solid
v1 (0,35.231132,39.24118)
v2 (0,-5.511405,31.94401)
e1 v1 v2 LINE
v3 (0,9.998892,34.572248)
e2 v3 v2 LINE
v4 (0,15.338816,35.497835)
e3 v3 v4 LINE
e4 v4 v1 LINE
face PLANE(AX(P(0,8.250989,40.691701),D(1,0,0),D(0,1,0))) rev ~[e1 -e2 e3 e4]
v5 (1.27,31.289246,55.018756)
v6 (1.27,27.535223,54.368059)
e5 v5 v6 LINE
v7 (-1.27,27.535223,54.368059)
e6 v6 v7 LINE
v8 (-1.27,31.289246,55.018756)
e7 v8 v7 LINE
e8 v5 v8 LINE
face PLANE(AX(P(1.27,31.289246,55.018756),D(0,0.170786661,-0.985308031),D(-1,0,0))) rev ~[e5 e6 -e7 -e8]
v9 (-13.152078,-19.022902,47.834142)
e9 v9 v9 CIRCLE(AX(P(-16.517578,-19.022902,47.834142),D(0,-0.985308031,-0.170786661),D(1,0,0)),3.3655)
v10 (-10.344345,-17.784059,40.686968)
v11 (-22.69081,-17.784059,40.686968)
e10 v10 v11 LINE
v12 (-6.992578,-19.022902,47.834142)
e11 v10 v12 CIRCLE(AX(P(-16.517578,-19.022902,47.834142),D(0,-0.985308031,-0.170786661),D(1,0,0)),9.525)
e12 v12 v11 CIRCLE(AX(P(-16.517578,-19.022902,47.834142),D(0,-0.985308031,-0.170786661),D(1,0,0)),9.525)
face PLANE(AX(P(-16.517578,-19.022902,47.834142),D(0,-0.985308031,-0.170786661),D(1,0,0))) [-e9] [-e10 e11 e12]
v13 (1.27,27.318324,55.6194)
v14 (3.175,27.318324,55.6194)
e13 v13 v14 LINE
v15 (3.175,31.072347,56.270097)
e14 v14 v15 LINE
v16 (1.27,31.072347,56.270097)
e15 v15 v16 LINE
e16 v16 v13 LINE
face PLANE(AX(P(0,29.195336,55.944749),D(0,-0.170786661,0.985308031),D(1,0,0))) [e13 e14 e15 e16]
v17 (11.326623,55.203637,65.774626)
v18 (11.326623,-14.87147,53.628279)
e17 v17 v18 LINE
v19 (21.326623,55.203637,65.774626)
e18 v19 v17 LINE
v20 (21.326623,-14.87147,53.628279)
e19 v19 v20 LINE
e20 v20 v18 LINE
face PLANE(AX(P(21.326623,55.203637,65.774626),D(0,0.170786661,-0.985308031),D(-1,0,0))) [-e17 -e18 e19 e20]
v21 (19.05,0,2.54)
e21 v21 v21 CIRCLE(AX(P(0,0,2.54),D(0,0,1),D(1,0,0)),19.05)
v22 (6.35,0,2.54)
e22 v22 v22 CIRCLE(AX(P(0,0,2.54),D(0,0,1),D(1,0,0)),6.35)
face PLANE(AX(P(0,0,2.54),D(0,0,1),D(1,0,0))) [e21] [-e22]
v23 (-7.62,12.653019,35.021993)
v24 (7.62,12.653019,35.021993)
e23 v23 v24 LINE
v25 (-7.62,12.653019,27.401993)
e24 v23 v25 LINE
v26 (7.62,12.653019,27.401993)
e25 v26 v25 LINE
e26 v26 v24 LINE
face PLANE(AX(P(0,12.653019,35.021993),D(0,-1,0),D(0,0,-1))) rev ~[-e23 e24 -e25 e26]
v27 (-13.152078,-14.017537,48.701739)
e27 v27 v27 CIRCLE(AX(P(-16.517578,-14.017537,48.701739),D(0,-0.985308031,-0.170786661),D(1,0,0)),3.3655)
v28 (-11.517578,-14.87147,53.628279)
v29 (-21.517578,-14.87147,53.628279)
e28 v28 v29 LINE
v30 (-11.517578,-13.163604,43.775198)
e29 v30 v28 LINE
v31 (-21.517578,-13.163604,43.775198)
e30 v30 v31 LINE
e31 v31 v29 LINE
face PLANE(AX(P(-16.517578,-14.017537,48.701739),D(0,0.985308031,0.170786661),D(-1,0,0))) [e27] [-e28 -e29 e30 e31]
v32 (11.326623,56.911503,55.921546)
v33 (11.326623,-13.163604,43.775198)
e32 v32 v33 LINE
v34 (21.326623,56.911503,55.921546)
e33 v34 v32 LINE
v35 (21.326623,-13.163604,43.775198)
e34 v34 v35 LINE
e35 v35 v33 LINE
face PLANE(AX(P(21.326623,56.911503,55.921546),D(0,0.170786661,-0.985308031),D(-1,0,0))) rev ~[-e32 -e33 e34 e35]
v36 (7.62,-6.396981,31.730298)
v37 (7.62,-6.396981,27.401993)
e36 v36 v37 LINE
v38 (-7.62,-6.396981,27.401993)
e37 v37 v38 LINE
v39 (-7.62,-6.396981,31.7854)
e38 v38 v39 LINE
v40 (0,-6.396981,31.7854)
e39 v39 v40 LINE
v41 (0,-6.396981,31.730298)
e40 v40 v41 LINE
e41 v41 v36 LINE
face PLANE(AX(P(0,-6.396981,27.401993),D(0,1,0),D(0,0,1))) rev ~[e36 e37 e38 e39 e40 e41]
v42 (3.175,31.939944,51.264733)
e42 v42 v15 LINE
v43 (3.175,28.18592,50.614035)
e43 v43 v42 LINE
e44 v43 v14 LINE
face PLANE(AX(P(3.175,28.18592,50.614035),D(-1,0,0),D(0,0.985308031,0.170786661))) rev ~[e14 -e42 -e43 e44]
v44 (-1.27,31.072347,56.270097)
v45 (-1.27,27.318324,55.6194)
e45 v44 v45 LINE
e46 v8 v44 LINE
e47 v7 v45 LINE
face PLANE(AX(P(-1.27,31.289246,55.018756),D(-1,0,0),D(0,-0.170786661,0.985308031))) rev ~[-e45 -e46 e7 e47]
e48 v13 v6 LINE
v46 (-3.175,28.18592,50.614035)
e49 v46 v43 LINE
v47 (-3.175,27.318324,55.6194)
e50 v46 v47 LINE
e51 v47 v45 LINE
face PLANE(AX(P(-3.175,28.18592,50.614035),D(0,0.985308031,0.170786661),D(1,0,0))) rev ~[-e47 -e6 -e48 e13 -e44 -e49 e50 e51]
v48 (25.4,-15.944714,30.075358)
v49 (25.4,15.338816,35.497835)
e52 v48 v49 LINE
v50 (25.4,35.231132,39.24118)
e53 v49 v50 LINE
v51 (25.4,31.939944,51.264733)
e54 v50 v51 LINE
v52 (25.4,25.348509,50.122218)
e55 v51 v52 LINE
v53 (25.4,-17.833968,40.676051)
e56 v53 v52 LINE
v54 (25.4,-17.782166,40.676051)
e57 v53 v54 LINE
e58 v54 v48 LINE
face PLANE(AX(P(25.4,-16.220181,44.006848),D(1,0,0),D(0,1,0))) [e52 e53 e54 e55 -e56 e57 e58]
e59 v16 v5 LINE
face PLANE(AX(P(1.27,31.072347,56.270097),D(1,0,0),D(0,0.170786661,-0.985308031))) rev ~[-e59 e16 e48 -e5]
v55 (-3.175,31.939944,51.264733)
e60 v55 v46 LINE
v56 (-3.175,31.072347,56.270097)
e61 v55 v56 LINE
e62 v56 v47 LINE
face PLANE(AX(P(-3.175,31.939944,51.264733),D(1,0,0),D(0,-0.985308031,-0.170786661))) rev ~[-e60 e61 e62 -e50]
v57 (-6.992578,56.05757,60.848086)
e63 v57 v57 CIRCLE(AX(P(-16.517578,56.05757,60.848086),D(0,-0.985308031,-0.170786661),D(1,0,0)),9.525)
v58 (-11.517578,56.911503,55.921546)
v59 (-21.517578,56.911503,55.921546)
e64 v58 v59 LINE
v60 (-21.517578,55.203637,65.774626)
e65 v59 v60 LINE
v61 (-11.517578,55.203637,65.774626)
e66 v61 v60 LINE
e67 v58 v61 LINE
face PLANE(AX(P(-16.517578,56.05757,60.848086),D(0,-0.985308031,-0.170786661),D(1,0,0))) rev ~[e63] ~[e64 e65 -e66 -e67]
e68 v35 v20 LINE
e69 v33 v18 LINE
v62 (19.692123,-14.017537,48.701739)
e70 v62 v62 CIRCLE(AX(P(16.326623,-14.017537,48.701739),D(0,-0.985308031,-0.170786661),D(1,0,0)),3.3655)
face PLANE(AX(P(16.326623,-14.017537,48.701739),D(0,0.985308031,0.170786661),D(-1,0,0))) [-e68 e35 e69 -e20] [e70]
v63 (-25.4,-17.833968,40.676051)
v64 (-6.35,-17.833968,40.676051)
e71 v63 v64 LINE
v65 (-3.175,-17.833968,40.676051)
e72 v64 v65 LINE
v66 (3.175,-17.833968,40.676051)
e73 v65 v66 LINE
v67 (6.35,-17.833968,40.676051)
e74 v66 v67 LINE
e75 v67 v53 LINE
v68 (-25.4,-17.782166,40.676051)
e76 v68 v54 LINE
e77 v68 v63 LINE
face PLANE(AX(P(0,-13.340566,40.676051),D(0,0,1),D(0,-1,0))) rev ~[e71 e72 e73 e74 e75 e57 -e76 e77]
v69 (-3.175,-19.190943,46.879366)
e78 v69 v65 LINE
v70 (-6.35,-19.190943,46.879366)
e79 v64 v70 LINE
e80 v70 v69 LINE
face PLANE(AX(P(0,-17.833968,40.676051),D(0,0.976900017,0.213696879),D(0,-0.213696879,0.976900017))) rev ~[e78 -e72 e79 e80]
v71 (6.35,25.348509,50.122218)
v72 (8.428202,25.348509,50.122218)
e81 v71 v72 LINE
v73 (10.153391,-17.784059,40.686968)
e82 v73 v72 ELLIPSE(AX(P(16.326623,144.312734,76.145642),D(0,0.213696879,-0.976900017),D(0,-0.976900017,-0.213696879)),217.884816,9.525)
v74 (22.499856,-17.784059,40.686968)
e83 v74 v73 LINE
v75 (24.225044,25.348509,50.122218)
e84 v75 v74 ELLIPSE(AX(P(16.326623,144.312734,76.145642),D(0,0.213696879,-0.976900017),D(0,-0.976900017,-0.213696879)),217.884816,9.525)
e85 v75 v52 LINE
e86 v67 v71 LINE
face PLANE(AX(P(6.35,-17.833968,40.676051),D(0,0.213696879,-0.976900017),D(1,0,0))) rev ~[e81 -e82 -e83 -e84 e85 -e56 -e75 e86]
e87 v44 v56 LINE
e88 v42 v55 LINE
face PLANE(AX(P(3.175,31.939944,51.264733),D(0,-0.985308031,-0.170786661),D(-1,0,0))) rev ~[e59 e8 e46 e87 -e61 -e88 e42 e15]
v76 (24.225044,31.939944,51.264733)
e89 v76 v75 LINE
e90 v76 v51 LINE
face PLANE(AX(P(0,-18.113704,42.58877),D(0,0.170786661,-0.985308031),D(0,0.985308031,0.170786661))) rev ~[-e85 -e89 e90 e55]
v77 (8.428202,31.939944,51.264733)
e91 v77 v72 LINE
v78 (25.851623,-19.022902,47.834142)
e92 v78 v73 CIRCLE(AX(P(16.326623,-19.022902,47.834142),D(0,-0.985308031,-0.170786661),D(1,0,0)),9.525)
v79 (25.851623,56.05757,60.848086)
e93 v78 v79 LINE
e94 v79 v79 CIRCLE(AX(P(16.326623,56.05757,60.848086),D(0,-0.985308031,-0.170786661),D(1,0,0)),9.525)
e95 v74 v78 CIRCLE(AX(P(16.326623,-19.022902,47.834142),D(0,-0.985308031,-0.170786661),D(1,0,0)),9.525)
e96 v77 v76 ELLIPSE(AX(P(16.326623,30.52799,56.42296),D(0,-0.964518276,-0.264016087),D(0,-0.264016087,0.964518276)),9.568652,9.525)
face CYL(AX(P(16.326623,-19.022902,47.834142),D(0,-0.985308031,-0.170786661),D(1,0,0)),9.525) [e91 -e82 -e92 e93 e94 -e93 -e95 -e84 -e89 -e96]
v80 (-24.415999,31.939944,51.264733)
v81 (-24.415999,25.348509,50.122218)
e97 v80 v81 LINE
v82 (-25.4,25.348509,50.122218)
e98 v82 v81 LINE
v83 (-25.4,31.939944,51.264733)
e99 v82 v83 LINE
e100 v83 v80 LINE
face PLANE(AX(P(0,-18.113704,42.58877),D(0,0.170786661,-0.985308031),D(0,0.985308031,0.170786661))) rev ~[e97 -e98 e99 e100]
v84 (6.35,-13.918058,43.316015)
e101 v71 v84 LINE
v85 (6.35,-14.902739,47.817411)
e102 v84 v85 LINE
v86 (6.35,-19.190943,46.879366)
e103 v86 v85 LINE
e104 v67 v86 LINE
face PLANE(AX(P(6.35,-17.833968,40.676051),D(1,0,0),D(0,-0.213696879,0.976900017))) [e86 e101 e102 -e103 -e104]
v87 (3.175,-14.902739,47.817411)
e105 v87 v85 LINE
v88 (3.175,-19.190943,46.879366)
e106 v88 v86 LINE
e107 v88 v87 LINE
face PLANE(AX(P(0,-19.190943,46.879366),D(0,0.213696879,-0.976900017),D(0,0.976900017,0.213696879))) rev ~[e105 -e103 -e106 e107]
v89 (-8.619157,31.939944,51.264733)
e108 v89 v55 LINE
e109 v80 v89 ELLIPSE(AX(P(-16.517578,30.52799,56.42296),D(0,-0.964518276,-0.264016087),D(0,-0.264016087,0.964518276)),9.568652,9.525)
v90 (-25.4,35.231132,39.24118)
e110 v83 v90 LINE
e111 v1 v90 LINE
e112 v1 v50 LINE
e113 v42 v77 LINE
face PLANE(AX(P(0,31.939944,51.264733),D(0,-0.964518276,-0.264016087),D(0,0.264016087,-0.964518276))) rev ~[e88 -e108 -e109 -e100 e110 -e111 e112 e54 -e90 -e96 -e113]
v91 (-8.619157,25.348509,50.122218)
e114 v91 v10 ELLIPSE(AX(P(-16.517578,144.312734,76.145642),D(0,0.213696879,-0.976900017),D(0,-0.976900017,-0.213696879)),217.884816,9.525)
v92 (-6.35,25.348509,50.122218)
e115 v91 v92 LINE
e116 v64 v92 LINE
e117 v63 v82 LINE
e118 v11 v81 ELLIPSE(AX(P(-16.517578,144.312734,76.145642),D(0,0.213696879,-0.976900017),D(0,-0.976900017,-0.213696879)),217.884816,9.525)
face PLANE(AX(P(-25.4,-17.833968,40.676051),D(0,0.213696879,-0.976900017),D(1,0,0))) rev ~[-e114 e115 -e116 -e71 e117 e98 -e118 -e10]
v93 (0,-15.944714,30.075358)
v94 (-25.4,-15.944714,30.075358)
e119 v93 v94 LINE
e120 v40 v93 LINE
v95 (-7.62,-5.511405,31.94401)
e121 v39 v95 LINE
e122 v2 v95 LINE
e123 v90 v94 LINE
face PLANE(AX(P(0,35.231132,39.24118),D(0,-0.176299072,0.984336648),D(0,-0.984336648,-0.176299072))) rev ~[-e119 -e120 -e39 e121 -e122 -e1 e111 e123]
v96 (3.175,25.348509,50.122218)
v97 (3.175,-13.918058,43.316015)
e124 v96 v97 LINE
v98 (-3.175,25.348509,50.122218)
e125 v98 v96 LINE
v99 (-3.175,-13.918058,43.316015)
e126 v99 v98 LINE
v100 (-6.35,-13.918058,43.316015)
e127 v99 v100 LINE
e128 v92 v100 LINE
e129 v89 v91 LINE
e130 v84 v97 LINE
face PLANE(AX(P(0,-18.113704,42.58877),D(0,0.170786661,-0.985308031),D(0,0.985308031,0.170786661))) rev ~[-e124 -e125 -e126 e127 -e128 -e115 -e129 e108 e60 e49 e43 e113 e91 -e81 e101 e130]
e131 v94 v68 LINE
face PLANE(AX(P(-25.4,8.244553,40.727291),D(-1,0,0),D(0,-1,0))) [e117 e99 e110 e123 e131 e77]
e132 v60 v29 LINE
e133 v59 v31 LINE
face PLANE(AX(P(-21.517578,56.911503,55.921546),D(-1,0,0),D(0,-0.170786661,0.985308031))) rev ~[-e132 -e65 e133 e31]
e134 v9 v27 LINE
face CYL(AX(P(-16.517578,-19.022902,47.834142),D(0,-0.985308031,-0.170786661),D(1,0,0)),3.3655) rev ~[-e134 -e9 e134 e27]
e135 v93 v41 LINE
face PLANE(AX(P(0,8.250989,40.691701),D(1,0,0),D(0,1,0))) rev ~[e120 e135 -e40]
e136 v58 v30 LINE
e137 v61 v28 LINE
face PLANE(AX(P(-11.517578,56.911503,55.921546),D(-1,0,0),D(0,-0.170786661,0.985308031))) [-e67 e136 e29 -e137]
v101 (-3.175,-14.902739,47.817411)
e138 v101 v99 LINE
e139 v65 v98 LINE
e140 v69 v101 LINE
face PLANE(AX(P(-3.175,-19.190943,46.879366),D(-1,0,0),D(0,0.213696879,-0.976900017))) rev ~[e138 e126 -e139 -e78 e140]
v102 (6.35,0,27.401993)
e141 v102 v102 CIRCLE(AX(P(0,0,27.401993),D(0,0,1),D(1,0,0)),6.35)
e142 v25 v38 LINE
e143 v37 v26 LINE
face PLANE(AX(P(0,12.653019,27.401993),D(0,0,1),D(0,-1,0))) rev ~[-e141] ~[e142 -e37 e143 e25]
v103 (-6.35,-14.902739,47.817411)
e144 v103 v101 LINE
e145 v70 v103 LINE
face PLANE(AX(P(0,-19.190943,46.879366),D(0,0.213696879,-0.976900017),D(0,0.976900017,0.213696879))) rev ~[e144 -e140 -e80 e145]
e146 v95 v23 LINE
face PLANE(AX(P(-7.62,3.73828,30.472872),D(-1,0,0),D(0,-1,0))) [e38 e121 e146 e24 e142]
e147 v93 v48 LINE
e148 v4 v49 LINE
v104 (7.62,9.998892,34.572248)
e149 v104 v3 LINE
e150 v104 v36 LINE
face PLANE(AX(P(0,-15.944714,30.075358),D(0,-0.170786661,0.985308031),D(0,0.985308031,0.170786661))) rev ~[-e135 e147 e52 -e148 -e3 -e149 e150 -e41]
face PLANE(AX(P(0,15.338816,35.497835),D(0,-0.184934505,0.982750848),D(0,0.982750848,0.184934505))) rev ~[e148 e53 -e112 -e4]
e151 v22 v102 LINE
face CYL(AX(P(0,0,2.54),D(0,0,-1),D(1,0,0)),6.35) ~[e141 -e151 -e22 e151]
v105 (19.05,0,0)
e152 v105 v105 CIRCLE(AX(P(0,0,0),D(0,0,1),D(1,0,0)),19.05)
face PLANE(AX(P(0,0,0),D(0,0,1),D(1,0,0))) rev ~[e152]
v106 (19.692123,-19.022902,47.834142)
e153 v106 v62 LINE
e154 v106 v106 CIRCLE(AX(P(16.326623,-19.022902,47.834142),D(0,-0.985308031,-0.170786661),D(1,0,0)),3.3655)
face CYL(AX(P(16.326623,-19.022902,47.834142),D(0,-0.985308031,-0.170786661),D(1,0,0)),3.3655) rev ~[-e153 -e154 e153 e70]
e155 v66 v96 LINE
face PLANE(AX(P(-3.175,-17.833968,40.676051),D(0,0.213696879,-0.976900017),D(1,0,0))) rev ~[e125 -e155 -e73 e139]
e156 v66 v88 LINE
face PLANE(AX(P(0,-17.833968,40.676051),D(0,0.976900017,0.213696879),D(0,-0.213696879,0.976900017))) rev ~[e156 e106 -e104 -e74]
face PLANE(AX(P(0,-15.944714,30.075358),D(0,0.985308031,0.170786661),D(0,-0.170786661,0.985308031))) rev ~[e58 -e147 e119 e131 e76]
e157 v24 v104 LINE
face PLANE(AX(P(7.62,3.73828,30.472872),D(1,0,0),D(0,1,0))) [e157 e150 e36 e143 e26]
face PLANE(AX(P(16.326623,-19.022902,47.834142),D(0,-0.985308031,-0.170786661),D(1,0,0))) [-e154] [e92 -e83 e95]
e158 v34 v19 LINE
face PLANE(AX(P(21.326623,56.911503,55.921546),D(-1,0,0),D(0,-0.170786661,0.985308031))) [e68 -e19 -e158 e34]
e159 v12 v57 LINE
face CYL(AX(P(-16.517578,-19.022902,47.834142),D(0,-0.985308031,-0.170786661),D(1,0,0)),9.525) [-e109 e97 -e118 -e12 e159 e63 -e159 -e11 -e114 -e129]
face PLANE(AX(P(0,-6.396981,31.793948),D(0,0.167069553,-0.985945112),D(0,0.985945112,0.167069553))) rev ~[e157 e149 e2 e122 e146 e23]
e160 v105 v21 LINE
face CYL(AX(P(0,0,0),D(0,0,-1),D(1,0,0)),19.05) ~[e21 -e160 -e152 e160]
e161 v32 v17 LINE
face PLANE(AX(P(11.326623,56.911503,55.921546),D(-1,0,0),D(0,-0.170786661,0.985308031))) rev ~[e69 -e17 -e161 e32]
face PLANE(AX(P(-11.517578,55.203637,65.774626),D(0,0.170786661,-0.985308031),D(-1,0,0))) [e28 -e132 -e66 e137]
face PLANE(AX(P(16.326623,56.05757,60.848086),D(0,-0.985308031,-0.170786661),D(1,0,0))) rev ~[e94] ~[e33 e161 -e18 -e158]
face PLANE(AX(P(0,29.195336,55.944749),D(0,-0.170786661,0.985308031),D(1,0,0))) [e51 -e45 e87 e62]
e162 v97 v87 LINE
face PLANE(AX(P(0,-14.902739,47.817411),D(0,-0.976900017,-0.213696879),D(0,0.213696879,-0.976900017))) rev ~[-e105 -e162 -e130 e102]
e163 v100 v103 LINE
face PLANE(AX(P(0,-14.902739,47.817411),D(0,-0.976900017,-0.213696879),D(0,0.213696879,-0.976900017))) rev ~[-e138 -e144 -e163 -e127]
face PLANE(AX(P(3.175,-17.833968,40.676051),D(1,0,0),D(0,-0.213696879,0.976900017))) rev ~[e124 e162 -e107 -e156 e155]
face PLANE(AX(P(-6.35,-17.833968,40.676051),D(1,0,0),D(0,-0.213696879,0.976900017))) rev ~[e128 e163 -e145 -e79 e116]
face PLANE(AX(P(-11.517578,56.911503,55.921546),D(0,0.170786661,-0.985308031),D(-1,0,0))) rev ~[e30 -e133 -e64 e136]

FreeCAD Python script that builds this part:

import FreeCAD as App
import Part
import Sketcher
from FreeCAD import Vector
Q = App.Units.Quantity

doc = App.newDocument("Part")
params = doc.addObject("Spreadsheet::Sheet", "Params")
for row, (alias, value) in enumerate([
    ("sketch1_diameter", "1.5 in"),
    ("pad1_length", "0.1 in"),
    ("sketch2_diameter", "0.5 in"),
    ("pad2_length", "1 in"),
    ("sketch3_height", "0.3 in"),
    ("sketch3_width", "0.75 in"),
    ("pad3_length", "0.3 in"),
    ("sketch4_height", "0.3 in"),
    ("sketch4_width", "0.75 in"),
    ("pad4_length", "0.3 in"),
    ("sketch5_length", "2 in"),
    ("sketch5_length2", "0.5 in"),
    ("sketch5_length3", "1.25 in"),
    ("pad5_length", "1 in"),
    ("sketch6_length", "2 in"),
    ("sketch6_length2", "0.5 in"),
    ("pad6_length", "1 in"),
    ("sketch7_length", "0.25 in"),
    ("pad7_length", "1 in"),
    ("sketch8_length", "0.25 in"),
    ("pad8_length", "1 in"),
    ("sketch9_width", "0.75 in"),
    ("sketch9_height", "0.25 in"),
    ("pocket1_length", "2 in"),
    ("sketch10_width", "0.75 in"),
    ("sketch10_height", "0.25 in"),
    ("pocket2_length", "2 in"),
    ("sketch11_width", "0.25 in"),
    ("pocket3_length", "2 in"),
    ("sketch12_width", "0.25 in"),
    ("sketch12_height", "0.15 in"),
    ("pad9_length", "0.2 in"),
    ("sketch13_width", "0.1 in"),
    ("sketch13_height", "0.05 in"),
    ("pocket4_length", "1 in"),
    ("sketch14_diameter", "0.75 in"),
    ("pad10_length", "3 in"),
    ("pocket5_length", "2.8 in"),
    ("pocket6_length", "2.8 in"),
    ("sketch17_diameter", "0.265 in"),
    ("pocket7_length", "1 in"),
], start=1):
    params.set(f"A{row}", alias)
    params.set(f"B{row}", "=" + value)
    params.setAlias(f"B{row}", alias)

body = doc.addObject("PartDesign::Body", "Body")

# Sketch on XY plane
sketch1 = body.newObject("Sketcher::SketchObject", "Sketch")
sketch1.AttachmentSupport = (doc.getObject("XY_Plane"), [""])
sketch1.MapMode = "FlatFace"
sketch1.addGeometry(Part.Circle(Vector(0, 0, 0), Vector(0, 0, 1), 19.05), False)
sketch1.addConstraint([
    Sketcher.Constraint("Coincident", 0, 3, -1, 1),
    Sketcher.Constraint("Diameter", 0, Q("1.5 in")),
])
sketch1.setExpression("Constraints[1]", "Params.sketch1_diameter")
pad1 = body.newObject("PartDesign::Pad", "Pad")
pad1.Profile = sketch1
pad1.setExpression("Length", "Params.pad1_length")

# Sketch on XY plane
sketch2 = body.newObject("Sketcher::SketchObject", "Sketch001")
sketch2.AttachmentSupport = (doc.getObject("XY_Plane"), [""])
sketch2.MapMode = "FlatFace"
sketch2.AttachmentOffset = App.Placement(Vector(0, 0, 0.1 * 25.4), App.Rotation())
sketch2.addGeometry(Part.Circle(Vector(0, 0, 0), Vector(0, 0, 1), 6.35), False)
sketch2.addConstraint([
    Sketcher.Constraint("Coincident", 0, 3, -1, 1),
    Sketcher.Constraint("Diameter", 0, Q("0.5 in")),
])
sketch2.setExpression("Constraints[1]", "Params.sketch2_diameter")
pad2 = body.newObject("PartDesign::Pad", "Pad001")
pad2.Profile = sketch2
pad2.setExpression("Length", "Params.pad2_length")

# Sketch on YZ plane
sketch3 = body.newObject("Sketcher::SketchObject", "Sketch002")
sketch3.AttachmentSupport = (doc.getObject("YZ_Plane"), [""])
sketch3.MapMode = "FlatFace"
sketch3.addGeometry([
    Part.LineSegment(Vector(-6.396981, 31.793948, 0), Vector(-6.396981, 27.401993, 0)),
    Part.LineSegment(Vector(-6.396981, 27.401993, 0), Vector(12.653019, 27.401993, 0)),
    Part.LineSegment(Vector(12.653019, 27.401993, 0), Vector(12.653019, 35.021993, 0)),
    Part.LineSegment(Vector(12.653019, 35.021993, 0), Vector(-6.396981, 31.793948, 0)),
], False)
sketch3.addConstraint([
    Sketcher.Constraint("Coincident", 0, 2, 1, 1),
    Sketcher.Constraint("Coincident", 1, 2, 2, 1),
    Sketcher.Constraint("Coincident", 2, 2, 3, 1),
    Sketcher.Constraint("Coincident", 3, 2, 0, 1),
    Sketcher.Constraint("Vertical", 0),
    Sketcher.Constraint("Horizontal", 1),
    Sketcher.Constraint("Vertical", 2),
    Sketcher.Constraint("DistanceY", 2, 1, 2, 2, Q("0.3 in")),
    Sketcher.Constraint("DistanceX", 1, 1, 1, 2, Q("0.75 in")),
    Sketcher.Constraint("DistanceY", 0, 2, 0, 1, Q("4.391955 mm")),
    Sketcher.Constraint("DistanceX", 0, 2, -1, 1, Q("6.396981 mm")),
    Sketcher.Constraint("DistanceY", -1, 1, 3, 2, Q("31.793948 mm")),
])
sketch3.setExpression("Constraints[7]", "Params.sketch3_height")
sketch3.setExpression("Constraints[8]", "Params.sketch3_width")
pad3 = body.newObject("PartDesign::Pad", "Pad002")
pad3.Profile = sketch3
pad3.setExpression("Length", "Params.pad3_length")

# Sketch on YZ plane
sketch4 = body.newObject("Sketcher::SketchObject", "Sketch003")
sketch4.AttachmentSupport = (doc.getObject("YZ_Plane"), [""])
sketch4.MapMode = "FlatFace"
sketch4.addGeometry([
    Part.LineSegment(Vector(12.653019, 35.021993, 0), Vector(12.653019, 27.401993, 0)),
    Part.LineSegment(Vector(12.653019, 27.401993, 0), Vector(-6.396981, 27.401993, 0)),
    Part.LineSegment(Vector(-6.396981, 27.401993, 0), Vector(-6.396981, 31.793948, 0)),
    Part.LineSegment(Vector(-6.396981, 31.793948, 0), Vector(12.653019, 35.021993, 0)),
], False)
sketch4.addConstraint([
    Sketcher.Constraint("Coincident", 0, 2, 1, 1),
    Sketcher.Constraint("Coincident", 1, 2, 2, 1),
    Sketcher.Constraint("Coincident", 2, 2, 3, 1),
    Sketcher.Constraint("Coincident", 3, 2, 0, 1),
    Sketcher.Constraint("Vertical", 0),
    Sketcher.Constraint("Horizontal", 1),
    Sketcher.Constraint("Vertical", 2),
    Sketcher.Constraint("DistanceY", 0, 2, 0, 1, Q("0.3 in")),
    Sketcher.Constraint("DistanceX", 1, 2, 1, 1, Q("0.75 in")),
    Sketcher.Constraint("DistanceY", 2, 1, 2, 2, Q("4.391955 mm")),
    Sketcher.Constraint("DistanceX", -1, 1, 0, 2, Q("12.653019 mm")),
    Sketcher.Constraint("DistanceY", -1, 1, 2, 2, Q("31.793948 mm")),
])
sketch4.setExpression("Constraints[7]", "Params.sketch4_height")
sketch4.setExpression("Constraints[8]", "Params.sketch4_width")
pad4 = body.newObject("PartDesign::Pad", "Pad003")
pad4.Profile = sketch4
pad4.setExpression("Length", "Params.pad4_length")
pad4.Reversed = True

# Sketch on YZ plane
sketch5 = body.newObject("Sketcher::SketchObject", "Sketch004")
sketch5.AttachmentSupport = (doc.getObject("YZ_Plane"), [""])
sketch5.MapMode = "FlatFace"
sketch5.addGeometry([
    Part.LineSegment(Vector(-15.944714, 30.075358, 0), Vector(15.338816, 35.497835, 0)),  # 0
    Part.LineSegment(Vector(15.338816, 35.497835, 0), Vector(35.231132, 39.24118, 0)),  # 1
    Part.LineSegment(Vector(35.231132, 39.24118, 0), Vector(31.939944, 51.264733, 0)),  # 2
    Part.LineSegment(Vector(31.939944, 51.264733, 0), Vector(-18.113704, 42.58877, 0)),  # 3
    Part.LineSegment(Vector(-18.113704, 42.58877, 0), Vector(-15.944714, 30.075358, 0)),  # 4
], False)
sketch5.addConstraint([
    Sketcher.Constraint("Coincident", 0, 2, 1, 1),
    Sketcher.Constraint("Coincident", 1, 2, 2, 1),
    Sketcher.Constraint("Coincident", 2, 2, 3, 1),
    Sketcher.Constraint("Coincident", 3, 2, 4, 1),
    Sketcher.Constraint("Coincident", 4, 2, 0, 1),
    Sketcher.Constraint("Parallel", 0, 3),
    Sketcher.Constraint("Perpendicular", 3, 4),
    Sketcher.Constraint("Distance", 3, Q("2 in")),
    Sketcher.Constraint("Distance", 4, Q("0.5 in")),
    Sketcher.Constraint("Distance", 0, Q("1.25 in")),
    Sketcher.Constraint("DistanceY", -1, 1, 1, 2, Q("39.24118 mm")),
    Sketcher.Constraint("DistanceY", -1, 1, 3, 2, Q("42.58877 mm")),
    Sketcher.Constraint("DistanceY", -1, 1, 4, 2, Q("30.075358 mm")),
    Sketcher.Constraint("DistanceX", 2, 2, 1, 2, Q("3.291188 mm")),
    Sketcher.Constraint("DistanceX", -1, 1, 0, 2, Q("15.338816 mm")),
])
sketch5.setExpression("Constraints[7]", "Params.sketch5_length")
sketch5.setExpression("Constraints[8]", "Params.sketch5_length2")
sketch5.setExpression("Constraints[9]", "Params.sketch5_length3")
pad5 = body.newObject("PartDesign::Pad", "Pad004")
pad5.Profile = sketch5
pad5.setExpression("Length", "Params.pad5_length")

# Sketch on YZ plane
sketch6 = body.newObject("Sketcher::SketchObject", "Sketch005")
sketch6.AttachmentSupport = (doc.getObject("YZ_Plane"), [""])
sketch6.MapMode = "FlatFace"
sketch6.addGeometry([
    Part.LineSegment(Vector(31.939944, 51.264733, 0), Vector(35.231132, 39.24118, 0)),
    Part.LineSegment(Vector(35.231132, 39.24118, 0), Vector(-15.944714, 30.075358, 0)),
    Part.LineSegment(Vector(-15.944714, 30.075358, 0), Vector(-18.113704, 42.58877, 0)),
    Part.LineSegment(Vector(-18.113704, 42.58877, 0), Vector(31.939944, 51.264733, 0)),
], False)
sketch6.addConstraint([
    Sketcher.Constraint("Coincident", 0, 2, 1, 1),
    Sketcher.Constraint("Coincident", 1, 2, 2, 1),
    Sketcher.Constraint("Coincident", 2, 2, 3, 1),
    Sketcher.Constraint("Coincident", 3, 2, 0, 1),
    Sketcher.Constraint("Perpendicular", 2, 3),
    Sketcher.Constraint("Distance", 3, Q("2 in")),
    Sketcher.Constraint("Distance", 2, Q("0.5 in")),
    Sketcher.Constraint("DistanceY", -1, 1, 0, 2, Q("39.24118 mm")),
    Sketcher.Constraint("DistanceY", -1, 1, 1, 2, Q("30.075358 mm")),
    Sketcher.Constraint("DistanceY", -1, 1, 2, 2, Q("42.58877 mm")),
    Sketcher.Constraint("DistanceX", 3, 2, 0, 2, Q("3.291188 mm")),
    Sketcher.Constraint("DistanceX", -1, 1, 0, 2, Q("35.231132 mm")),
])
sketch6.setExpression("Constraints[5]", "Params.sketch6_length")
sketch6.setExpression("Constraints[6]", "Params.sketch6_length2")
pad6 = body.newObject("PartDesign::Pad", "Pad005")
pad6.Profile = sketch6
pad6.setExpression("Length", "Params.pad6_length")
pad6.Reversed = True

# Sketch on YZ plane
sketch7 = body.newObject("Sketcher::SketchObject", "Sketch006")
sketch7.AttachmentSupport = (doc.getObject("YZ_Plane"), [""])
sketch7.MapMode = "FlatFace"
sketch7.addGeometry([
    Part.LineSegment(Vector(-19.190943, 46.879366, 0), Vector(-17.833968, 40.676051, 0)),
    Part.LineSegment(Vector(-17.833968, 40.676051, 0), Vector(-13.340566, 40.676051, 0)),
    Part.LineSegment(Vector(-13.340566, 40.676051, 0), Vector(-14.902739, 47.817411, 0)),
    Part.LineSegment(Vector(-14.902739, 47.817411, 0), Vector(-19.190943, 46.879366, 0)),
], False)
sketch7.addConstraint([
    Sketcher.Constraint("Coincident", 0, 2, 1, 1),
    Sketcher.Constraint("Coincident", 1, 2, 2, 1),
    Sketcher.Constraint("Coincident", 2, 2, 3, 1),
    Sketcher.Constraint("Coincident", 3, 2, 0, 1),
    Sketcher.Constraint("Horizontal", 1),
    Sketcher.Constraint("Parallel", 0, 2),
    Sketcher.Constraint("Perpendicular", 2, 3),
    Sketcher.Constraint("Distance", 0, Q("0.25 in")),
    Sketcher.Constraint("DistanceX", 1, 1, 1, 2, Q("4.493402 mm")),
    Sketcher.Constraint("DistanceY", -1, 1, 0, 2, Q("40.676051 mm")),
    Sketcher.Constraint("DistanceX", 2, 2, -1, 1, Q("14.902739 mm")),
    Sketcher.Constraint("DistanceY", -1, 1, 2, 2, Q("47.817411 mm")),
])
sketch7.setExpression("Constraints[7]", "Params.sketch7_length")
pad7 = body.newObject("PartDesign::Pad", "Pad006")
pad7.Profile = sketch7
pad7.setExpression("Length", "Params.pad7_length")

# Sketch on YZ plane
sketch8 = body.newObject("Sketcher::SketchObject", "Sketch007")
sketch8.AttachmentSupport = (doc.getObject("YZ_Plane"), [""])
sketch8.MapMode = "FlatFace"
sketch8.addGeometry([
    Part.LineSegment(Vector(-13.340566, 40.676051, 0), Vector(-17.833968, 40.676051, 0)),
    Part.LineSegment(Vector(-17.833968, 40.676051, 0), Vector(-19.190943, 46.879366, 0)),
    Part.LineSegment(Vector(-19.190943, 46.879366, 0), Vector(-14.902739, 47.817411, 0)),
    Part.LineSegment(Vector(-14.902739, 47.817411, 0), Vector(-13.340566, 40.676051, 0)),
], False)
sketch8.addConstraint([
    Sketcher.Constraint("Coincident", 0, 2, 1, 1),
    Sketcher.Constraint("Coincident", 1, 2, 2, 1),
    Sketcher.Constraint("Coincident", 2, 2, 3, 1),
    Sketcher.Constraint("Coincident", 3, 2, 0, 1),
    Sketcher.Constraint("Horizontal", 0),
    Sketcher.Constraint("Perpendicular", 1, 2),
    Sketcher.Constraint("Perpendicular", 2, 3),
    Sketcher.Constraint("Distance", 1, Q("0.25 in")),
    Sketcher.Constraint("DistanceX", 0, 2, 0, 1, Q("4.493402 mm")),
    Sketcher.Constraint("DistanceY", -1, 1, 0, 2, Q("40.676051 mm")),
    Sketcher.Constraint("DistanceX", 2, 2, -1, 1, Q("14.902739 mm")),
    Sketcher.Constraint("DistanceY", -1, 1, 2, 2, Q("47.817411 mm")),
])
sketch8.setExpression("Constraints[7]", "Params.sketch8_length")
pad8 = body.newObject("PartDesign::Pad", "Pad007")
pad8.Profile = sketch8
pad8.setExpression("Length", "Params.pad8_length")
pad8.Reversed = True

# Sketch on an angled plane
sketch9 = body.newObject("Sketcher::SketchObject", "Sketch008")
sketch9.Placement = App.Placement(Vector(0, -8.528003, -1.865501), App.Rotation(Vector(1, 0, 0), Vector(0, -0.213696879, 0.976900017), Vector(0, -0.976900017, -0.213696879), "ZXY"))
sketch9.addGeometry([
    Part.LineSegment(Vector(-25.4, 49.897498, 0), Vector(-25.4, 43.547498, 0)),
    Part.LineSegment(Vector(-25.4, 43.547498, 0), Vector(-6.35, 43.547498, 0)),
    Part.LineSegment(Vector(-6.35, 43.547498, 0), Vector(-6.35, 49.897498, 0)),
    Part.LineSegment(Vector(-6.35, 49.897498, 0), Vector(-25.4, 49.897498, 0)),
], False)
sketch9.addConstraint([
    Sketcher.Constraint("Coincident", 0, 2, 1, 1),
    Sketcher.Constraint("Coincident", 1, 2, 2, 1),
    Sketcher.Constraint("Coincident", 2, 2, 3, 1),
    Sketcher.Constraint("Coincident", 3, 2, 0, 1),
    Sketcher.Constraint("Vertical", 0),
    Sketcher.Constraint("Horizontal", 1),
    Sketcher.Constraint("Vertical", 2),
    Sketcher.Constraint("Horizontal", 3),
    Sketcher.Constraint("DistanceX", 0, 2, -1, 1, Q("1 in")),
    Sketcher.Constraint("DistanceX", 1, 1, 1, 2, Q("0.75 in")),
    Sketcher.Constraint("DistanceY", 0, 2, 0, 1, Q("0.25 in")),
    Sketcher.Constraint("DistanceY", -1, 1, 0, 2, Q("43.547498 mm")),
])
sketch9.setExpression("Constraints[9]", "Params.sketch9_width")
sketch9.setExpression("Constraints[10]", "Params.sketch9_height")
pocket1 = body.newObject("PartDesign::Pocket", "Pocket")
pocket1.Profile = sketch9
pocket1.setExpression("Length", "Params.pocket1_length")

# Sketch on an angled plane
sketch10 = body.newObject("Sketcher::SketchObject", "Sketch009")
sketch10.Placement = App.Placement(Vector(0, -8.528003, -1.865501), App.Rotation(Vector(1, 0, 0), Vector(0, -0.213696879, 0.976900017), Vector(0, -0.976900017, -0.213696879), "ZXY"))
sketch10.addGeometry([
    Part.LineSegment(Vector(6.35, 49.897498, 0), Vector(6.35, 43.547498, 0)),
    Part.LineSegment(Vector(6.35, 43.547498, 0), Vector(25.4, 43.547498, 0)),
    Part.LineSegment(Vector(25.4, 43.547498, 0), Vector(25.4, 49.897498, 0)),
    Part.LineSegment(Vector(25.4, 49.897498, 0), Vector(6.35, 49.897498, 0)),
], False)
sketch10.addConstraint([
    Sketcher.Constraint("Coincident", 0, 2, 1, 1),
    Sketcher.Constraint("Coincident", 1, 2, 2, 1),
    Sketcher.Constraint("Coincident", 2, 2, 3, 1),
    Sketcher.Constraint("Coincident", 3, 2, 0, 1),
    Sketcher.Constraint("Vertical", 0),
    Sketcher.Constraint("Horizontal", 1),
    Sketcher.Constraint("Vertical", 2),
    Sketcher.Constraint("Horizontal", 3),
    Sketcher.Constraint("DistanceX", -1, 1, 1, 2, Q("1 in")),
    Sketcher.Constraint("DistanceX", 1, 1, 1, 2, Q("0.75 in")),
    Sketcher.Constraint("DistanceY", 0, 2, 0, 1, Q("0.25 in")),
    Sketcher.Constraint("DistanceY", -1, 1, 0, 2, Q("43.547498 mm")),
])
sketch10.setExpression("Constraints[9]", "Params.sketch10_width")
sketch10.setExpression("Constraints[10]", "Params.sketch10_height")
pocket2 = body.newObject("PartDesign::Pocket", "Pocket001")
pocket2.Profile = sketch10
pocket2.setExpression("Length", "Params.pocket2_length")

# Sketch on an angled plane
sketch11 = body.newObject("Sketcher::SketchObject", "Sketch010")
sketch11.Placement = App.Placement(Vector(0, -8.528003, -1.865501), App.Rotation(Vector(1, 0, 0), Vector(0, -0.213696879, 0.976900017), Vector(0, -0.976900017, -0.213696879), "ZXY"))
sketch11.addGeometry([
    Part.LineSegment(Vector(3.175, 49.897498, 0), Vector(-3.175, 49.897498, 0)),
    Part.LineSegment(Vector(-3.175, 49.897498, 0), Vector(-3.175, 43.547498, 0)),
    Part.LineSegment(Vector(-3.175, 43.547498, 0), Vector(3.175, 43.547498, 0)),
    Part.LineSegment(Vector(3.175, 43.547498, 0), Vector(3.175, 49.897498, 0)),
], False)
sketch11.addConstraint([
    Sketcher.Constraint("Coincident", 0, 2, 1, 1),
    Sketcher.Constraint("Coincident", 1, 2, 2, 1),
    Sketcher.Constraint("Coincident", 2, 2, 3, 1),
    Sketcher.Constraint("Coincident", 3, 2, 0, 1),
    Sketcher.Constraint("Horizontal", 0),
    Sketcher.Constraint("Vertical", 1),
    Sketcher.Constraint("Horizontal", 2),
    Sketcher.Constraint("Vertical", 3),
    Sketcher.Constraint("Equal", 2, 1),
    Sketcher.Constraint("DistanceX", 0, 2, 0, 1, Q("0.25 in")),
    Sketcher.Constraint("DistanceX", 0, 2, -1, 1, Q("0.125 in")),
    Sketcher.Constraint("DistanceY", -1, 1, 0, 2, Q("49.897498 mm")),
])
sketch11.setExpression("Constraints[9]", "Params.sketch11_width")
pocket3 = body.newObject("PartDesign::Pocket", "Pocket002")
pocket3.Profile = sketch11
pocket3.setExpression("Length", "Params.pocket3_length")

# Sketch on an angled plane
sketch12 = body.newObject("Sketcher::SketchObject", "Sketch011")
sketch12.Placement = App.Placement(Vector(0, -7.695073, 44.394666), App.Rotation(Vector(1, 0, 0), Vector(0, 0.985308031, 0.170786661), Vector(0, -0.170786661, 0.985308031), "ZXY"))
sketch12.addGeometry([
    Part.LineSegment(Vector(3.175, 40.226016, 0), Vector(-3.175, 40.226016, 0)),
    Part.LineSegment(Vector(-3.175, 40.226016, 0), Vector(-3.175, 36.416016, 0)),
    Part.LineSegment(Vector(-3.175, 36.416016, 0), Vector(3.175, 36.416016, 0)),
    Part.LineSegment(Vector(3.175, 36.416016, 0), Vector(3.175, 40.226016, 0)),
], False)
sketch12.addConstraint([
    Sketcher.Constraint("Coincident", 0, 2, 1, 1),
    Sketcher.Constraint("Coincident", 1, 2, 2, 1),
    Sketcher.Constraint("Coincident", 2, 2, 3, 1),
    Sketcher.Constraint("Coincident", 3, 2, 0, 1),
    Sketcher.Constraint("Horizontal", 0),
    Sketcher.Constraint("Vertical", 1),
    Sketcher.Constraint("Horizontal", 2),
    Sketcher.Constraint("Vertical", 3),
    Sketcher.Constraint("DistanceX", 0, 2, 0, 1, Q("0.25 in")),
    Sketcher.Constraint("DistanceY", 1, 2, 1, 1, Q("0.15 in")),
    Sketcher.Constraint("DistanceX", 0, 2, -1, 1, Q("0.125 in")),
    Sketcher.Constraint("DistanceY", -1, 1, 0, 2, Q("40.226016 mm")),
])
sketch12.setExpression("Constraints[8]", "Params.sketch12_width")
sketch12.setExpression("Constraints[9]", "Params.sketch12_height")
pad9 = body.newObject("PartDesign::Pad", "Pad008")
pad9.Profile = sketch12
pad9.setExpression("Length", "Params.pad9_length")

# Sketch on an angled plane
sketch13 = body.newObject("Sketcher::SketchObject", "Sketch012")
sketch13.Placement = App.Placement(Vector(0, 39.635016, 6.870067), App.Rotation(Vector(-1, 0, 0), Vector(0, -0.170786661, 0.985308031), Vector(0, 0.985308031, 0.170786661), "ZXY"))
sketch13.addGeometry([
    Part.LineSegment(Vector(1.27, 50.136636, 0), Vector(-1.27, 50.136636, 0)),
    Part.LineSegment(Vector(-1.27, 50.136636, 0), Vector(-1.27, 48.866636, 0)),
    Part.LineSegment(Vector(-1.27, 48.866636, 0), Vector(1.27, 48.866636, 0)),
    Part.LineSegment(Vector(1.27, 48.866636, 0), Vector(1.27, 50.136636, 0)),
], False)
sketch13.addConstraint([
    Sketcher.Constraint("Coincident", 0, 2, 1, 1),
    Sketcher.Constraint("Coincident", 1, 2, 2, 1),
    Sketcher.Constraint("Coincident", 2, 2, 3, 1),
    Sketcher.Constraint("Coincident", 3, 2, 0, 1),
    Sketcher.Constraint("Horizontal", 0),
    Sketcher.Constraint("Vertical", 1),
    Sketcher.Constraint("Horizontal", 2),
    Sketcher.Constraint("Vertical", 3),
    Sketcher.Constraint("DistanceX", 0, 2, 0, 1, Q("0.1 in")),
    Sketcher.Constraint("DistanceY", 1, 2, 1, 1, Q("0.05 in")),
    Sketcher.Constraint("DistanceX", 0, 2, -1, 1, Q("0.05 in")),
    Sketcher.Constraint("DistanceY", -1, 1, 0, 2, Q("50.136636 mm")),
])
sketch13.setExpression("Constraints[8]", "Params.sketch13_width")
sketch13.setExpression("Constraints[9]", "Params.sketch13_height")
pocket4 = body.newObject("PartDesign::Pocket", "Pocket003")
pocket4.Profile = sketch13
pocket4.setExpression("Length", "Params.pocket4_length")

# Sketch on an angled plane
sketch14 = body.newObject("Sketcher::SketchObject", "Sketch013")
sketch14.Placement = App.Placement(Vector(0, -10.418632, -1.805896), App.Rotation(Vector(1, 0, 0), Vector(0, -0.170786661, 0.985308031), Vector(0, -0.985308031, -0.170786661), "ZXY"))
sketch14.addGeometry([
    Part.Circle(Vector(-16.517578, 50.380222, 0), Vector(0, 0, 1), 9.525),
    Part.Circle(Vector(16.326623, 50.380222, 0), Vector(0, 0, 1), 9.525),
], False)
sketch14.addConstraint([
    Sketcher.Constraint("Equal", 0, 1),
    Sketcher.Constraint("Horizontal", 0, 3, 1, 3),
    Sketcher.Constraint("Diameter", 0, Q("0.75 in")),
    Sketcher.Constraint("DistanceX", 0, 3, 1, 3, Q("32.844201 mm")),
    Sketcher.Constraint("DistanceX", 0, 3, -1, 1, Q("16.517578 mm")),
    Sketcher.Constraint("DistanceY", -1, 1, 0, 3, Q("50.380222 mm")),
])
sketch14.setExpression("Constraints[2]", "Params.sketch14_diameter")
pad10 = body.newObject("PartDesign::Pad", "Pad009")
pad10.Profile = sketch14
pad10.setExpression("Length", "Params.pad10_length")
pad10.Reversed = True

# Sketch on an angled plane
sketch15 = body.newObject("Sketcher::SketchObject", "Sketch014")
sketch15.Placement = App.Placement(Vector(0, 64.66184, 11.208048), App.Rotation(Vector(-1, 0, 0), Vector(0, -0.170786661, 0.985308031), Vector(0, 0.985308031, 0.170786661), "ZXY"))
sketch15.addGeometry([
    Part.LineSegment(Vector(11.517578, 55.380222, 0), Vector(11.517578, 45.380222, 0)),
    Part.LineSegment(Vector(11.517578, 45.380222, 0), Vector(21.517578, 45.380222, 0)),
    Part.LineSegment(Vector(21.517578, 45.380222, 0), Vector(21.517578, 55.380222, 0)),
    Part.LineSegment(Vector(21.517578, 55.380222, 0), Vector(11.517578, 55.380222, 0)),
], False)
sketch15.addConstraint([
    Sketcher.Constraint("Coincident", 0, 2, 1, 1),
    Sketcher.Constraint("Coincident", 1, 2, 2, 1),
    Sketcher.Constraint("Coincident", 2, 2, 3, 1),
    Sketcher.Constraint("Coincident", 3, 2, 0, 1),
    Sketcher.Constraint("Vertical", 0),
    Sketcher.Constraint("Horizontal", 1),
    Sketcher.Constraint("Vertical", 2),
    Sketcher.Constraint("Horizontal", 3),
    Sketcher.Constraint("Equal", 3, 0),
    Sketcher.Constraint("DistanceX", 1, 1, 1, 2, Q("10 mm")),
    Sketcher.Constraint("DistanceX", -1, 1, 0, 2, Q("11.517578 mm")),
    Sketcher.Constraint("DistanceY", -1, 1, 0, 2, Q("45.380222 mm")),
])
pocket5 = body.newObject("PartDesign::Pocket", "Pocket004")
pocket5.Profile = sketch15
pocket5.setExpression("Length", "Params.pocket5_length")

# Sketch on an angled plane
sketch16 = body.newObject("Sketcher::SketchObject", "Sketch015")
sketch16.Placement = App.Placement(Vector(0, 64.66184, 11.208048), App.Rotation(Vector(-1, 0, 0), Vector(0, -0.170786661, 0.985308031), Vector(0, 0.985308031, 0.170786661), "ZXY"))
sketch16.addGeometry([
    Part.LineSegment(Vector(-21.326623, 55.380222, 0), Vector(-21.326623, 45.380222, 0)),
    Part.LineSegment(Vector(-21.326623, 45.380222, 0), Vector(-11.326623, 45.380222, 0)),
    Part.LineSegment(Vector(-11.326623, 45.380222, 0), Vector(-11.326623, 55.380222, 0)),
    Part.LineSegment(Vector(-11.326623, 55.380222, 0), Vector(-21.326623, 55.380222, 0)),
], False)
sketch16.addConstraint([
    Sketcher.Constraint("Coincident", 0, 2, 1, 1),
    Sketcher.Constraint("Coincident", 1, 2, 2, 1),
    Sketcher.Constraint("Coincident", 2, 2, 3, 1),
    Sketcher.Constraint("Coincident", 3, 2, 0, 1),
    Sketcher.Constraint("Vertical", 0),
    Sketcher.Constraint("Horizontal", 1),
    Sketcher.Constraint("Vertical", 2),
    Sketcher.Constraint("Horizontal", 3),
    Sketcher.Constraint("Equal", 3, 0),
    Sketcher.Constraint("DistanceX", 1, 1, 1, 2, Q("10 mm")),
    Sketcher.Constraint("DistanceX", 0, 2, -1, 1, Q("21.326623 mm")),
    Sketcher.Constraint("DistanceY", -1, 1, 0, 2, Q("45.380222 mm")),
])
pocket6 = body.newObject("PartDesign::Pocket", "Pocket005")
pocket6.Profile = sketch16
pocket6.setExpression("Length", "Params.pocket6_length")

# Sketch on an angled plane
sketch17 = body.newObject("Sketcher::SketchObject", "Sketch016")
sketch17.Placement = App.Placement(Vector(0, -10.418632, -1.805896), App.Rotation(Vector(1, 0, 0), Vector(0, -0.170786661, 0.985308031), Vector(0, -0.985308031, -0.170786661), "ZXY"))
sketch17.addGeometry([
    Part.Circle(Vector(16.326623, 50.380222, 0), Vector(0, 0, 1), 3.3655),
    Part.Circle(Vector(-16.517578, 50.380222, 0), Vector(0, 0, 1), 3.3655),
], False)
sketch17.addConstraint([
    Sketcher.Constraint("Equal", 0, 1),
    Sketcher.Constraint("Horizontal", 0, 3, 1, 3),
    Sketcher.Constraint("Diameter", 0, Q("0.265 in")),
    Sketcher.Constraint("DistanceX", 1, 3, 0, 3, Q("32.844201 mm")),
    Sketcher.Constraint("DistanceX", -1, 1, 0, 3, Q("16.326623 mm")),
    Sketcher.Constraint("DistanceY", -1, 1, 0, 3, Q("50.380222 mm")),
])
sketch17.setExpression("Constraints[2]", "Params.sketch17_diameter")
pocket7 = body.newObject("PartDesign::Pocket", "Pocket006")
pocket7.Profile = sketch17
pocket7.setExpression("Length", "Params.pocket7_length")

doc.recompute()
